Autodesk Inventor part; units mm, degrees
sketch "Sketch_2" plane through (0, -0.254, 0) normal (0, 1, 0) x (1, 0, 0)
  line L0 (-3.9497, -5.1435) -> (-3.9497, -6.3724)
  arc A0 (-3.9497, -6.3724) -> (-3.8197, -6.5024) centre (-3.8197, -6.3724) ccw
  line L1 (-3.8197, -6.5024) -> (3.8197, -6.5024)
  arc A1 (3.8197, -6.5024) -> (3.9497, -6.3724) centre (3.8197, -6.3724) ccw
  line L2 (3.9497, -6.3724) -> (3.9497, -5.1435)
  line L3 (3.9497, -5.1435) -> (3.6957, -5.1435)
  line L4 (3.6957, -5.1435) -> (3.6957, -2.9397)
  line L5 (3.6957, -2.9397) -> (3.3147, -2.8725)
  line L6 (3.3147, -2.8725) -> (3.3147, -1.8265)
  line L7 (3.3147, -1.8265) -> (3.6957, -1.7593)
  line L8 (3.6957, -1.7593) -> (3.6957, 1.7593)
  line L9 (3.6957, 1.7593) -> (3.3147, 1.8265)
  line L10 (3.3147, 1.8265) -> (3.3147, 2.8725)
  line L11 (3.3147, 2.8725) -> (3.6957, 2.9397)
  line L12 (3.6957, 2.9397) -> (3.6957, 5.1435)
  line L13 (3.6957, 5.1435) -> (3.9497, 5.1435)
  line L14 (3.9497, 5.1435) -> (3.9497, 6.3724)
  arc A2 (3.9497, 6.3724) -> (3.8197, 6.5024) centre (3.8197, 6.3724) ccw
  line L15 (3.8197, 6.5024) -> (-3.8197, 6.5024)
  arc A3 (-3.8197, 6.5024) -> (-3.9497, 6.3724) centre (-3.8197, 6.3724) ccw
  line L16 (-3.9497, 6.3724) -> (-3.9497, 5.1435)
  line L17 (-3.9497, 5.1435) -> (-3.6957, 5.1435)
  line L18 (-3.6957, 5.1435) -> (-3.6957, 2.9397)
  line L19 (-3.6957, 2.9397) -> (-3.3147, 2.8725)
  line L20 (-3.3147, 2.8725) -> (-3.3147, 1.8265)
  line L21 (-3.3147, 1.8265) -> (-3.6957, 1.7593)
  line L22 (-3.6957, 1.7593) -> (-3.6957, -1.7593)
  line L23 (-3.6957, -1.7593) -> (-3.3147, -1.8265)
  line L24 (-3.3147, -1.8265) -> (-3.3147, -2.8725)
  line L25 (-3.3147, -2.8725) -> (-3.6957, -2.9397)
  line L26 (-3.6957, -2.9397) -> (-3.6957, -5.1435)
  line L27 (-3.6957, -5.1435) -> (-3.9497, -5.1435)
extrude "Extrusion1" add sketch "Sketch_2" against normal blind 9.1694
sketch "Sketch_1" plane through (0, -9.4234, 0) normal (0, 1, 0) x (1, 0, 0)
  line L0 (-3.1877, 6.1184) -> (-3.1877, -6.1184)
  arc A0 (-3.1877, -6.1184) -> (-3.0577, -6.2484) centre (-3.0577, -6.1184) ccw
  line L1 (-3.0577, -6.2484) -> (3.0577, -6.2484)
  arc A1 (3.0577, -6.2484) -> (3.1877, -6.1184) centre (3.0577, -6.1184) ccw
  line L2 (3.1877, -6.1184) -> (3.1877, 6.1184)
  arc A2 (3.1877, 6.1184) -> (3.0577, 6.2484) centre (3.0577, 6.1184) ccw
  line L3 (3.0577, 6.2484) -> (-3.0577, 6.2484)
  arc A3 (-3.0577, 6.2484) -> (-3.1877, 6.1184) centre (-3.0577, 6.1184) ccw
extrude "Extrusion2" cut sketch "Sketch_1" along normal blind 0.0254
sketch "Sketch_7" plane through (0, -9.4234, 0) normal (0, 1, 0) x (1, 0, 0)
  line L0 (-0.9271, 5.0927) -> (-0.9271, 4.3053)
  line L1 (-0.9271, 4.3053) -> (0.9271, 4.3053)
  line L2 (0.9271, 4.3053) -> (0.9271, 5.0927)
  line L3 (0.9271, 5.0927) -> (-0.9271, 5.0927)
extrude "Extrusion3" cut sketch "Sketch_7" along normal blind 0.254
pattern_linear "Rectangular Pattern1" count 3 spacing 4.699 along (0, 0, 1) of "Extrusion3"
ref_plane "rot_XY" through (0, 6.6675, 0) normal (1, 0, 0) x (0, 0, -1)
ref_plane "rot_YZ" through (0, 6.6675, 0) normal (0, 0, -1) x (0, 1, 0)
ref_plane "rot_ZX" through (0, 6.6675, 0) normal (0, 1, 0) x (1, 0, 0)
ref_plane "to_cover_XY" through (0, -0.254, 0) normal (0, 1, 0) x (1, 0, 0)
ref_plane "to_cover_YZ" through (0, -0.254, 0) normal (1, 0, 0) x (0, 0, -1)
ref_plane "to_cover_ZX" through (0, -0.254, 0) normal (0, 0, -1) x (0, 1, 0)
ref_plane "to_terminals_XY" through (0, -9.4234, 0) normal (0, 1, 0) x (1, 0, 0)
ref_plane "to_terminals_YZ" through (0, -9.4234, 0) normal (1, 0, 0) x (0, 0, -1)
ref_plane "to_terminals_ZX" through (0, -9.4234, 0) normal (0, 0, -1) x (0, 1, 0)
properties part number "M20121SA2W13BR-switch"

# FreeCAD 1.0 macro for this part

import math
import FreeCAD as App
import Part
import Sketcher

V = App.Vector
Q = App.Units.Quantity


def add_polygon(sketch, points):
    """Adds a closed chain of lines whose ends are joined by coincident constraints."""
    first, n = sketch.GeometryCount, len(points)
    for a, b in zip(points, points[1:] + points[:1]):
        sketch.addGeometry(Part.LineSegment(App.Vector(*a, 0), App.Vector(*b, 0)), False)
    for i in range(n):
        sketch.addConstraint(Sketcher.Constraint("Coincident", first + i, 2, first + (i + 1) % n, 1))

doc = App.newDocument("Part")
body = doc.addObject("PartDesign::Body", "Body")

# Sketch on XZ plane
sketch1 = body.newObject("Sketcher::SketchObject", "Sketch")
sketch1.AttachmentSupport = (doc.getObject("XZ_Plane"), [""])
sketch1.MapMode = "FlatFace"
sketch1.AttachmentOffset = App.Placement(V(0, 0, 0.01 * 25.4), App.Rotation())
sketch1.addGeometry([
    Part.LineSegment(V(-3.7, 5.14, 0), V(-3.95, 5.14, 0)),  # 0
    Part.LineSegment(V(-3.95, 5.14, 0), V(-3.95, 6.37, 0)),  # 1
    Part.ArcOfCircle(Part.Circle(V(-3.82, 6.37, 0), V(0, 0, 1), 0.13), math.radians(90), math.radians(180)),  # 2
    Part.LineSegment(V(-3.82, 6.5, 0), V(3.82, 6.5, 0)),  # 3
    Part.ArcOfCircle(Part.Circle(V(3.82, 6.37, 0), V(0, 0, 1), 0.13), math.radians(0), math.radians(90)),  # 4
    Part.LineSegment(V(3.95, 6.37, 0), V(3.95, 5.14, 0)),  # 5
    Part.LineSegment(V(3.95, 5.14, 0), V(3.7, 5.14, 0)),  # 6
    Part.LineSegment(V(3.7, 5.14, 0), V(3.7, 2.94, 0)),  # 7
    Part.LineSegment(V(3.7, 2.94, 0), V(3.31, 2.87, 0)),  # 8
    Part.LineSegment(V(3.31, 2.87, 0), V(3.31, 1.83, 0)),  # 9
    Part.LineSegment(V(3.31, 1.83, 0), V(3.7, 1.76, 0)),  # 10
    Part.LineSegment(V(3.7, 1.76, 0), V(3.7, -1.76, 0)),  # 11
    Part.LineSegment(V(3.7, -1.76, 0), V(3.31, -1.83, 0)),  # 12
    Part.LineSegment(V(3.31, -1.83, 0), V(3.31, -2.87, 0)),  # 13
    Part.LineSegment(V(3.31, -2.87, 0), V(3.7, -2.94, 0)),  # 14
    Part.LineSegment(V(3.7, -2.94, 0), V(3.7, -5.14, 0)),  # 15
    Part.LineSegment(V(3.7, -5.14, 0), V(3.95, -5.14, 0)),  # 16
    Part.LineSegment(V(3.95, -5.14, 0), V(3.95, -6.37, 0)),  # 17
    Part.ArcOfCircle(Part.Circle(V(3.82, -6.37, 0), V(0, 0, 1), 0.13), math.radians(-90), math.radians(0)),  # 18
    Part.LineSegment(V(3.82, -6.5, 0), V(-3.82, -6.5, 0)),  # 19
    Part.ArcOfCircle(Part.Circle(V(-3.82, -6.37, 0), V(0, 0, 1), 0.13), math.radians(180), math.radians(270)),  # 20
    Part.LineSegment(V(-3.95, -6.37, 0), V(-3.95, -5.14, 0)),  # 21
    Part.LineSegment(V(-3.95, -5.14, 0), V(-3.7, -5.14, 0)),  # 22
    Part.LineSegment(V(-3.7, -5.14, 0), V(-3.7, -2.94, 0)),  # 23
    Part.LineSegment(V(-3.7, -2.94, 0), V(-3.31, -2.87, 0)),  # 24
    Part.LineSegment(V(-3.31, -2.87, 0), V(-3.31, -1.83, 0)),  # 25
    Part.LineSegment(V(-3.31, -1.83, 0), V(-3.7, -1.76, 0)),  # 26
    Part.LineSegment(V(-3.7, -1.76, 0), V(-3.7, 1.76, 0)),  # 27
    Part.LineSegment(V(-3.7, 1.76, 0), V(-3.31, 1.83, 0)),  # 28
    Part.LineSegment(V(-3.31, 1.83, 0), V(-3.31, 2.87, 0)),  # 29
    Part.LineSegment(V(-3.31, 2.87, 0), V(-3.7, 2.94, 0)),  # 30
    Part.LineSegment(V(-3.7, 2.94, 0), V(-3.7, 5.14, 0)),  # 31
], False)
sketch1.addConstraint([
    Sketcher.Constraint("Coincident", 0, 2, 1, 1),
    Sketcher.Constraint("Tangent", 1, 2, 2, 2),
    Sketcher.Constraint("Tangent", 2, 1, 3, 1),
    Sketcher.Constraint("Tangent", 3, 2, 4, 2),
    Sketcher.Constraint("Tangent", 4, 1, 5, 1),
    Sketcher.Constraint("Coincident", 5, 2, 6, 1),
    Sketcher.Constraint("Coincident", 6, 2, 7, 1),
    Sketcher.Constraint("Coincident", 7, 2, 8, 1),
    Sketcher.Constraint("Coincident", 8, 2, 9, 1),
    Sketcher.Constraint("Coincident", 9, 2, 10, 1),
    Sketcher.Constraint("Coincident", 10, 2, 11, 1),
    Sketcher.Constraint("Coincident", 11, 2, 12, 1),
    Sketcher.Constraint("Coincident", 12, 2, 13, 1),
    Sketcher.Constraint("Coincident", 13, 2, 14, 1),
    Sketcher.Constraint("Coincident", 14, 2, 15, 1),
    Sketcher.Constraint("Coincident", 15, 2, 16, 1),
    Sketcher.Constraint("Coincident", 16, 2, 17, 1),
    Sketcher.Constraint("Tangent", 17, 2, 18, 2),
    Sketcher.Constraint("Tangent", 18, 1, 19, 1),
    Sketcher.Constraint("Tangent", 19, 2, 20, 2),
    Sketcher.Constraint("Tangent", 20, 1, 21, 1),
    Sketcher.Constraint("Coincident", 21, 2, 22, 1),
    Sketcher.Constraint("Coincident", 22, 2, 23, 1),
    Sketcher.Constraint("Coincident", 23, 2, 24, 1),
    Sketcher.Constraint("Coincident", 24, 2, 25, 1),
    Sketcher.Constraint("Coincident", 25, 2, 26, 1),
    Sketcher.Constraint("Coincident", 26, 2, 27, 1),
    Sketcher.Constraint("Coincident", 27, 2, 28, 1),
    Sketcher.Constraint("Coincident", 28, 2, 29, 1),
    Sketcher.Constraint("Coincident", 29, 2, 30, 1),
    Sketcher.Constraint("Coincident", 30, 2, 31, 1),
    Sketcher.Constraint("Coincident", 31, 2, 0, 1),
    Sketcher.Constraint("Horizontal", 0),
    Sketcher.Constraint("Vertical", 1),
    Sketcher.Constraint("Horizontal", 3),
    Sketcher.Constraint("Vertical", 5),
    Sketcher.Constraint("Horizontal", 6),
    Sketcher.Constraint("Vertical", 7),
    Sketcher.Constraint("Vertical", 9),
    Sketcher.Constraint("Vertical", 11),
    Sketcher.Constraint("Vertical", 13),
    Sketcher.Constraint("Vertical", 15),
    Sketcher.Constraint("Horizontal", 16),
    Sketcher.Constraint("Vertical", 17),
    Sketcher.Constraint("Horizontal", 19),
    Sketcher.Constraint("Vertical", 21),
    Sketcher.Constraint("Horizontal", 22),
    Sketcher.Constraint("Vertical", 23),
    Sketcher.Constraint("Vertical", 25),
    Sketcher.Constraint("Vertical", 27),
    Sketcher.Constraint("Vertical", 29),
    Sketcher.Constraint("Vertical", 31),
    Sketcher.Constraint("Equal", 2, 4),
    Sketcher.Constraint("Equal", 4, 18),
    Sketcher.Constraint("Equal", 18, 20),
    Sketcher.Constraint("Symmetric", 2, 3, 18, 3, -1, 1),
    Sketcher.Constraint("Symmetric", 5, 2, 21, 2, -1, 1),
    Sketcher.Constraint("Symmetric", 7, 2, 23, 2, -1, 1),
    Sketcher.Constraint("Symmetric", 8, 2, 24, 2, -1, 1),
    Sketcher.Constraint("Symmetric", 10, 2, 26, 2, -1, 1),
    Sketcher.Constraint("Symmetric", 12, 2, 28, 2, -1, 1),
    Sketcher.Constraint("Symmetric", 14, 2, 30, 2, -1, 1),
    Sketcher.Constraint("Symmetric", 0, 2, 5, 2, -2),
    Sketcher.Constraint("Symmetric", 15, 2, 22, 2, -2),
    Sketcher.Constraint("Symmetric", 13, 2, 24, 2, -2),
    Sketcher.Constraint("Parallel", 8, 12),
    Sketcher.Constraint("Parallel", 10, 14),
    Sketcher.Constraint("Parallel", 14, 26),
    Sketcher.Constraint("Parallel", 24, 28),
    Sketcher.Constraint("Parallel", 26, 30),
    Sketcher.Constraint("Horizontal", 14, 2, 23, 2),
    Sketcher.Constraint("Horizontal", 12, 2, 25, 2),
    Sketcher.Constraint("Vertical", 7, 2, 10, 2),
    Sketcher.Constraint("DistanceX", 0, 2, 0, 1, Q("0.01 in")),
    Sketcher.Constraint("Radius", 2, Q("0.13 mm")),
    Sketcher.Constraint("DistanceY", -1, 1, 2, 1, Q("0.256 in")),
    Sketcher.Constraint("DistanceX", 1, 2, 4, 1, Q("0.311 in")),
    Sketcher.Constraint("DistanceX", 8, 2, 7, 2, Q("0.015 in")),
    Sketcher.Constraint("DistanceY", 11, 2, 7, 2, Q("0.185 in")),
    Sketcher.Constraint("DistanceY", 1, 1, 1, 2, Q("1.229 mm")),
    Sketcher.Constraint("DistanceY", 7, 2, 7, 1, Q("2.2038 mm")),
    Sketcher.Constraint("DistanceY", 9, 2, 9, 1, Q("1.046 mm")),
])
pad1 = body.newObject("PartDesign::Pad", "Pad")
pad1.Profile = sketch1
pad1.Length = Q("0.361 in")

# Sketch on XZ plane
sketch2 = body.newObject("Sketcher::SketchObject", "Sketch001")
sketch2.AttachmentSupport = (doc.getObject("XZ_Plane"), [""])
sketch2.MapMode = "FlatFace"
sketch2.AttachmentOffset = App.Placement(V(0, 0, 0.371 * 25.4), App.Rotation())
sketch2.addGeometry([
    Part.ArcOfCircle(Part.Circle(V(-3.06, -6.12, 0), V(0, 0, 1), 0.13), math.radians(180), math.radians(270)),  # 0
    Part.LineSegment(V(-3.19, -6.12, 0), V(-3.19, 6.12, 0)),  # 1
    Part.ArcOfCircle(Part.Circle(V(-3.06, 6.12, 0), V(0, 0, 1), 0.13), math.radians(90), math.radians(180)),  # 2
    Part.LineSegment(V(-3.06, 6.25, 0), V(3.06, 6.25, 0)),  # 3
    Part.ArcOfCircle(Part.Circle(V(3.06, 6.12, 0), V(0, 0, 1), 0.13), math.radians(0), math.radians(90)),  # 4
    Part.LineSegment(V(3.19, 6.12, 0), V(3.19, -6.12, 0)),  # 5
    Part.ArcOfCircle(Part.Circle(V(3.06, -6.12, 0), V(0, 0, 1), 0.13), math.radians(-90), math.radians(0)),  # 6
    Part.LineSegment(V(3.06, -6.25, 0), V(-3.06, -6.25, 0)),  # 7
], False)
sketch2.addConstraint([
    Sketcher.Constraint("Tangent", 0, 1, 1, 1),
    Sketcher.Constraint("Tangent", 1, 2, 2, 2),
    Sketcher.Constraint("Tangent", 2, 1, 3, 1),
    Sketcher.Constraint("Tangent", 3, 2, 4, 2),
    Sketcher.Constraint("Tangent", 4, 1, 5, 1),
    Sketcher.Constraint("Tangent", 5, 2, 6, 2),
    Sketcher.Constraint("Tangent", 6, 1, 7, 1),
    Sketcher.Constraint("Tangent", 7, 2, 0, 2),
    Sketcher.Constraint("Vertical", 1),
    Sketcher.Constraint("Horizontal", 3),
    Sketcher.Constraint("Vertical", 5),
    Sketcher.Constraint("Horizontal", 7),
    Sketcher.Constraint("Equal", 0, 2),
    Sketcher.Constraint("Equal", 2, 4),
    Sketcher.Constraint("Equal", 4, 6),
    Sketcher.Constraint("Symmetric", 0, 3, 4, 3, -1, 1),
    Sketcher.Constraint("Radius", 0, Q("0.13 mm")),
    Sketcher.Constraint("DistanceY", -1, 1, 2, 1, Q("0.246 in")),
    Sketcher.Constraint("DistanceX", 1, 2, 4, 1, Q("0.251 in")),
])
pocket1 = body.newObject("PartDesign::Pocket", "Pocket")
pocket1.Profile = sketch2
pocket1.Length = Q("0.001 in")

# Sketch on XZ plane
sketch3 = body.newObject("Sketcher::SketchObject", "Sketch002")
sketch3.AttachmentSupport = (doc.getObject("XZ_Plane"), [""])
sketch3.MapMode = "FlatFace"
sketch3.AttachmentOffset = App.Placement(V(0, 0, 0.371 * 25.4), App.Rotation())
add_polygon(sketch3, [(0.9, -5.1), (-0.9, -5.1), (-0.9, -4.3), (0.9, -4.3)])  # lines 0-3
sketch3.addConstraint([
    Sketcher.Constraint("Horizontal", 0),
    Sketcher.Constraint("Vertical", 1),
    Sketcher.Constraint("Horizontal", 2),
    Sketcher.Constraint("Vertical", 3),
    Sketcher.Constraint("DistanceX", 0, 2, 0, 1, Q("0.073 in")),
    Sketcher.Constraint("DistanceY", 1, 1, 1, 2, Q("0.031 in")),
    Sketcher.Constraint("DistanceX", 0, 2, -1, 1, Q("0.0365 in")),
    Sketcher.Constraint("DistanceY", 0, 2, -1, 1, Q("0.2005 in")),
])
pocket2 = body.newObject("PartDesign::Pocket", "Pocket001")
pocket2.Profile = sketch3
pocket2.Length = Q("0.01 in")
doc.recompute()

linearpattern = body.newObject("PartDesign::LinearPattern", "LinearPattern")
linearpattern.Originals = [pocket2]
linearpattern.Direction = (doc.getObject("Z_Axis"), [""])
linearpattern.Mode = "offset"
linearpattern.Offset = Q("0.185 in")
linearpattern.Occurrences = 3
body.Tip = linearpattern

doc.recompute()
